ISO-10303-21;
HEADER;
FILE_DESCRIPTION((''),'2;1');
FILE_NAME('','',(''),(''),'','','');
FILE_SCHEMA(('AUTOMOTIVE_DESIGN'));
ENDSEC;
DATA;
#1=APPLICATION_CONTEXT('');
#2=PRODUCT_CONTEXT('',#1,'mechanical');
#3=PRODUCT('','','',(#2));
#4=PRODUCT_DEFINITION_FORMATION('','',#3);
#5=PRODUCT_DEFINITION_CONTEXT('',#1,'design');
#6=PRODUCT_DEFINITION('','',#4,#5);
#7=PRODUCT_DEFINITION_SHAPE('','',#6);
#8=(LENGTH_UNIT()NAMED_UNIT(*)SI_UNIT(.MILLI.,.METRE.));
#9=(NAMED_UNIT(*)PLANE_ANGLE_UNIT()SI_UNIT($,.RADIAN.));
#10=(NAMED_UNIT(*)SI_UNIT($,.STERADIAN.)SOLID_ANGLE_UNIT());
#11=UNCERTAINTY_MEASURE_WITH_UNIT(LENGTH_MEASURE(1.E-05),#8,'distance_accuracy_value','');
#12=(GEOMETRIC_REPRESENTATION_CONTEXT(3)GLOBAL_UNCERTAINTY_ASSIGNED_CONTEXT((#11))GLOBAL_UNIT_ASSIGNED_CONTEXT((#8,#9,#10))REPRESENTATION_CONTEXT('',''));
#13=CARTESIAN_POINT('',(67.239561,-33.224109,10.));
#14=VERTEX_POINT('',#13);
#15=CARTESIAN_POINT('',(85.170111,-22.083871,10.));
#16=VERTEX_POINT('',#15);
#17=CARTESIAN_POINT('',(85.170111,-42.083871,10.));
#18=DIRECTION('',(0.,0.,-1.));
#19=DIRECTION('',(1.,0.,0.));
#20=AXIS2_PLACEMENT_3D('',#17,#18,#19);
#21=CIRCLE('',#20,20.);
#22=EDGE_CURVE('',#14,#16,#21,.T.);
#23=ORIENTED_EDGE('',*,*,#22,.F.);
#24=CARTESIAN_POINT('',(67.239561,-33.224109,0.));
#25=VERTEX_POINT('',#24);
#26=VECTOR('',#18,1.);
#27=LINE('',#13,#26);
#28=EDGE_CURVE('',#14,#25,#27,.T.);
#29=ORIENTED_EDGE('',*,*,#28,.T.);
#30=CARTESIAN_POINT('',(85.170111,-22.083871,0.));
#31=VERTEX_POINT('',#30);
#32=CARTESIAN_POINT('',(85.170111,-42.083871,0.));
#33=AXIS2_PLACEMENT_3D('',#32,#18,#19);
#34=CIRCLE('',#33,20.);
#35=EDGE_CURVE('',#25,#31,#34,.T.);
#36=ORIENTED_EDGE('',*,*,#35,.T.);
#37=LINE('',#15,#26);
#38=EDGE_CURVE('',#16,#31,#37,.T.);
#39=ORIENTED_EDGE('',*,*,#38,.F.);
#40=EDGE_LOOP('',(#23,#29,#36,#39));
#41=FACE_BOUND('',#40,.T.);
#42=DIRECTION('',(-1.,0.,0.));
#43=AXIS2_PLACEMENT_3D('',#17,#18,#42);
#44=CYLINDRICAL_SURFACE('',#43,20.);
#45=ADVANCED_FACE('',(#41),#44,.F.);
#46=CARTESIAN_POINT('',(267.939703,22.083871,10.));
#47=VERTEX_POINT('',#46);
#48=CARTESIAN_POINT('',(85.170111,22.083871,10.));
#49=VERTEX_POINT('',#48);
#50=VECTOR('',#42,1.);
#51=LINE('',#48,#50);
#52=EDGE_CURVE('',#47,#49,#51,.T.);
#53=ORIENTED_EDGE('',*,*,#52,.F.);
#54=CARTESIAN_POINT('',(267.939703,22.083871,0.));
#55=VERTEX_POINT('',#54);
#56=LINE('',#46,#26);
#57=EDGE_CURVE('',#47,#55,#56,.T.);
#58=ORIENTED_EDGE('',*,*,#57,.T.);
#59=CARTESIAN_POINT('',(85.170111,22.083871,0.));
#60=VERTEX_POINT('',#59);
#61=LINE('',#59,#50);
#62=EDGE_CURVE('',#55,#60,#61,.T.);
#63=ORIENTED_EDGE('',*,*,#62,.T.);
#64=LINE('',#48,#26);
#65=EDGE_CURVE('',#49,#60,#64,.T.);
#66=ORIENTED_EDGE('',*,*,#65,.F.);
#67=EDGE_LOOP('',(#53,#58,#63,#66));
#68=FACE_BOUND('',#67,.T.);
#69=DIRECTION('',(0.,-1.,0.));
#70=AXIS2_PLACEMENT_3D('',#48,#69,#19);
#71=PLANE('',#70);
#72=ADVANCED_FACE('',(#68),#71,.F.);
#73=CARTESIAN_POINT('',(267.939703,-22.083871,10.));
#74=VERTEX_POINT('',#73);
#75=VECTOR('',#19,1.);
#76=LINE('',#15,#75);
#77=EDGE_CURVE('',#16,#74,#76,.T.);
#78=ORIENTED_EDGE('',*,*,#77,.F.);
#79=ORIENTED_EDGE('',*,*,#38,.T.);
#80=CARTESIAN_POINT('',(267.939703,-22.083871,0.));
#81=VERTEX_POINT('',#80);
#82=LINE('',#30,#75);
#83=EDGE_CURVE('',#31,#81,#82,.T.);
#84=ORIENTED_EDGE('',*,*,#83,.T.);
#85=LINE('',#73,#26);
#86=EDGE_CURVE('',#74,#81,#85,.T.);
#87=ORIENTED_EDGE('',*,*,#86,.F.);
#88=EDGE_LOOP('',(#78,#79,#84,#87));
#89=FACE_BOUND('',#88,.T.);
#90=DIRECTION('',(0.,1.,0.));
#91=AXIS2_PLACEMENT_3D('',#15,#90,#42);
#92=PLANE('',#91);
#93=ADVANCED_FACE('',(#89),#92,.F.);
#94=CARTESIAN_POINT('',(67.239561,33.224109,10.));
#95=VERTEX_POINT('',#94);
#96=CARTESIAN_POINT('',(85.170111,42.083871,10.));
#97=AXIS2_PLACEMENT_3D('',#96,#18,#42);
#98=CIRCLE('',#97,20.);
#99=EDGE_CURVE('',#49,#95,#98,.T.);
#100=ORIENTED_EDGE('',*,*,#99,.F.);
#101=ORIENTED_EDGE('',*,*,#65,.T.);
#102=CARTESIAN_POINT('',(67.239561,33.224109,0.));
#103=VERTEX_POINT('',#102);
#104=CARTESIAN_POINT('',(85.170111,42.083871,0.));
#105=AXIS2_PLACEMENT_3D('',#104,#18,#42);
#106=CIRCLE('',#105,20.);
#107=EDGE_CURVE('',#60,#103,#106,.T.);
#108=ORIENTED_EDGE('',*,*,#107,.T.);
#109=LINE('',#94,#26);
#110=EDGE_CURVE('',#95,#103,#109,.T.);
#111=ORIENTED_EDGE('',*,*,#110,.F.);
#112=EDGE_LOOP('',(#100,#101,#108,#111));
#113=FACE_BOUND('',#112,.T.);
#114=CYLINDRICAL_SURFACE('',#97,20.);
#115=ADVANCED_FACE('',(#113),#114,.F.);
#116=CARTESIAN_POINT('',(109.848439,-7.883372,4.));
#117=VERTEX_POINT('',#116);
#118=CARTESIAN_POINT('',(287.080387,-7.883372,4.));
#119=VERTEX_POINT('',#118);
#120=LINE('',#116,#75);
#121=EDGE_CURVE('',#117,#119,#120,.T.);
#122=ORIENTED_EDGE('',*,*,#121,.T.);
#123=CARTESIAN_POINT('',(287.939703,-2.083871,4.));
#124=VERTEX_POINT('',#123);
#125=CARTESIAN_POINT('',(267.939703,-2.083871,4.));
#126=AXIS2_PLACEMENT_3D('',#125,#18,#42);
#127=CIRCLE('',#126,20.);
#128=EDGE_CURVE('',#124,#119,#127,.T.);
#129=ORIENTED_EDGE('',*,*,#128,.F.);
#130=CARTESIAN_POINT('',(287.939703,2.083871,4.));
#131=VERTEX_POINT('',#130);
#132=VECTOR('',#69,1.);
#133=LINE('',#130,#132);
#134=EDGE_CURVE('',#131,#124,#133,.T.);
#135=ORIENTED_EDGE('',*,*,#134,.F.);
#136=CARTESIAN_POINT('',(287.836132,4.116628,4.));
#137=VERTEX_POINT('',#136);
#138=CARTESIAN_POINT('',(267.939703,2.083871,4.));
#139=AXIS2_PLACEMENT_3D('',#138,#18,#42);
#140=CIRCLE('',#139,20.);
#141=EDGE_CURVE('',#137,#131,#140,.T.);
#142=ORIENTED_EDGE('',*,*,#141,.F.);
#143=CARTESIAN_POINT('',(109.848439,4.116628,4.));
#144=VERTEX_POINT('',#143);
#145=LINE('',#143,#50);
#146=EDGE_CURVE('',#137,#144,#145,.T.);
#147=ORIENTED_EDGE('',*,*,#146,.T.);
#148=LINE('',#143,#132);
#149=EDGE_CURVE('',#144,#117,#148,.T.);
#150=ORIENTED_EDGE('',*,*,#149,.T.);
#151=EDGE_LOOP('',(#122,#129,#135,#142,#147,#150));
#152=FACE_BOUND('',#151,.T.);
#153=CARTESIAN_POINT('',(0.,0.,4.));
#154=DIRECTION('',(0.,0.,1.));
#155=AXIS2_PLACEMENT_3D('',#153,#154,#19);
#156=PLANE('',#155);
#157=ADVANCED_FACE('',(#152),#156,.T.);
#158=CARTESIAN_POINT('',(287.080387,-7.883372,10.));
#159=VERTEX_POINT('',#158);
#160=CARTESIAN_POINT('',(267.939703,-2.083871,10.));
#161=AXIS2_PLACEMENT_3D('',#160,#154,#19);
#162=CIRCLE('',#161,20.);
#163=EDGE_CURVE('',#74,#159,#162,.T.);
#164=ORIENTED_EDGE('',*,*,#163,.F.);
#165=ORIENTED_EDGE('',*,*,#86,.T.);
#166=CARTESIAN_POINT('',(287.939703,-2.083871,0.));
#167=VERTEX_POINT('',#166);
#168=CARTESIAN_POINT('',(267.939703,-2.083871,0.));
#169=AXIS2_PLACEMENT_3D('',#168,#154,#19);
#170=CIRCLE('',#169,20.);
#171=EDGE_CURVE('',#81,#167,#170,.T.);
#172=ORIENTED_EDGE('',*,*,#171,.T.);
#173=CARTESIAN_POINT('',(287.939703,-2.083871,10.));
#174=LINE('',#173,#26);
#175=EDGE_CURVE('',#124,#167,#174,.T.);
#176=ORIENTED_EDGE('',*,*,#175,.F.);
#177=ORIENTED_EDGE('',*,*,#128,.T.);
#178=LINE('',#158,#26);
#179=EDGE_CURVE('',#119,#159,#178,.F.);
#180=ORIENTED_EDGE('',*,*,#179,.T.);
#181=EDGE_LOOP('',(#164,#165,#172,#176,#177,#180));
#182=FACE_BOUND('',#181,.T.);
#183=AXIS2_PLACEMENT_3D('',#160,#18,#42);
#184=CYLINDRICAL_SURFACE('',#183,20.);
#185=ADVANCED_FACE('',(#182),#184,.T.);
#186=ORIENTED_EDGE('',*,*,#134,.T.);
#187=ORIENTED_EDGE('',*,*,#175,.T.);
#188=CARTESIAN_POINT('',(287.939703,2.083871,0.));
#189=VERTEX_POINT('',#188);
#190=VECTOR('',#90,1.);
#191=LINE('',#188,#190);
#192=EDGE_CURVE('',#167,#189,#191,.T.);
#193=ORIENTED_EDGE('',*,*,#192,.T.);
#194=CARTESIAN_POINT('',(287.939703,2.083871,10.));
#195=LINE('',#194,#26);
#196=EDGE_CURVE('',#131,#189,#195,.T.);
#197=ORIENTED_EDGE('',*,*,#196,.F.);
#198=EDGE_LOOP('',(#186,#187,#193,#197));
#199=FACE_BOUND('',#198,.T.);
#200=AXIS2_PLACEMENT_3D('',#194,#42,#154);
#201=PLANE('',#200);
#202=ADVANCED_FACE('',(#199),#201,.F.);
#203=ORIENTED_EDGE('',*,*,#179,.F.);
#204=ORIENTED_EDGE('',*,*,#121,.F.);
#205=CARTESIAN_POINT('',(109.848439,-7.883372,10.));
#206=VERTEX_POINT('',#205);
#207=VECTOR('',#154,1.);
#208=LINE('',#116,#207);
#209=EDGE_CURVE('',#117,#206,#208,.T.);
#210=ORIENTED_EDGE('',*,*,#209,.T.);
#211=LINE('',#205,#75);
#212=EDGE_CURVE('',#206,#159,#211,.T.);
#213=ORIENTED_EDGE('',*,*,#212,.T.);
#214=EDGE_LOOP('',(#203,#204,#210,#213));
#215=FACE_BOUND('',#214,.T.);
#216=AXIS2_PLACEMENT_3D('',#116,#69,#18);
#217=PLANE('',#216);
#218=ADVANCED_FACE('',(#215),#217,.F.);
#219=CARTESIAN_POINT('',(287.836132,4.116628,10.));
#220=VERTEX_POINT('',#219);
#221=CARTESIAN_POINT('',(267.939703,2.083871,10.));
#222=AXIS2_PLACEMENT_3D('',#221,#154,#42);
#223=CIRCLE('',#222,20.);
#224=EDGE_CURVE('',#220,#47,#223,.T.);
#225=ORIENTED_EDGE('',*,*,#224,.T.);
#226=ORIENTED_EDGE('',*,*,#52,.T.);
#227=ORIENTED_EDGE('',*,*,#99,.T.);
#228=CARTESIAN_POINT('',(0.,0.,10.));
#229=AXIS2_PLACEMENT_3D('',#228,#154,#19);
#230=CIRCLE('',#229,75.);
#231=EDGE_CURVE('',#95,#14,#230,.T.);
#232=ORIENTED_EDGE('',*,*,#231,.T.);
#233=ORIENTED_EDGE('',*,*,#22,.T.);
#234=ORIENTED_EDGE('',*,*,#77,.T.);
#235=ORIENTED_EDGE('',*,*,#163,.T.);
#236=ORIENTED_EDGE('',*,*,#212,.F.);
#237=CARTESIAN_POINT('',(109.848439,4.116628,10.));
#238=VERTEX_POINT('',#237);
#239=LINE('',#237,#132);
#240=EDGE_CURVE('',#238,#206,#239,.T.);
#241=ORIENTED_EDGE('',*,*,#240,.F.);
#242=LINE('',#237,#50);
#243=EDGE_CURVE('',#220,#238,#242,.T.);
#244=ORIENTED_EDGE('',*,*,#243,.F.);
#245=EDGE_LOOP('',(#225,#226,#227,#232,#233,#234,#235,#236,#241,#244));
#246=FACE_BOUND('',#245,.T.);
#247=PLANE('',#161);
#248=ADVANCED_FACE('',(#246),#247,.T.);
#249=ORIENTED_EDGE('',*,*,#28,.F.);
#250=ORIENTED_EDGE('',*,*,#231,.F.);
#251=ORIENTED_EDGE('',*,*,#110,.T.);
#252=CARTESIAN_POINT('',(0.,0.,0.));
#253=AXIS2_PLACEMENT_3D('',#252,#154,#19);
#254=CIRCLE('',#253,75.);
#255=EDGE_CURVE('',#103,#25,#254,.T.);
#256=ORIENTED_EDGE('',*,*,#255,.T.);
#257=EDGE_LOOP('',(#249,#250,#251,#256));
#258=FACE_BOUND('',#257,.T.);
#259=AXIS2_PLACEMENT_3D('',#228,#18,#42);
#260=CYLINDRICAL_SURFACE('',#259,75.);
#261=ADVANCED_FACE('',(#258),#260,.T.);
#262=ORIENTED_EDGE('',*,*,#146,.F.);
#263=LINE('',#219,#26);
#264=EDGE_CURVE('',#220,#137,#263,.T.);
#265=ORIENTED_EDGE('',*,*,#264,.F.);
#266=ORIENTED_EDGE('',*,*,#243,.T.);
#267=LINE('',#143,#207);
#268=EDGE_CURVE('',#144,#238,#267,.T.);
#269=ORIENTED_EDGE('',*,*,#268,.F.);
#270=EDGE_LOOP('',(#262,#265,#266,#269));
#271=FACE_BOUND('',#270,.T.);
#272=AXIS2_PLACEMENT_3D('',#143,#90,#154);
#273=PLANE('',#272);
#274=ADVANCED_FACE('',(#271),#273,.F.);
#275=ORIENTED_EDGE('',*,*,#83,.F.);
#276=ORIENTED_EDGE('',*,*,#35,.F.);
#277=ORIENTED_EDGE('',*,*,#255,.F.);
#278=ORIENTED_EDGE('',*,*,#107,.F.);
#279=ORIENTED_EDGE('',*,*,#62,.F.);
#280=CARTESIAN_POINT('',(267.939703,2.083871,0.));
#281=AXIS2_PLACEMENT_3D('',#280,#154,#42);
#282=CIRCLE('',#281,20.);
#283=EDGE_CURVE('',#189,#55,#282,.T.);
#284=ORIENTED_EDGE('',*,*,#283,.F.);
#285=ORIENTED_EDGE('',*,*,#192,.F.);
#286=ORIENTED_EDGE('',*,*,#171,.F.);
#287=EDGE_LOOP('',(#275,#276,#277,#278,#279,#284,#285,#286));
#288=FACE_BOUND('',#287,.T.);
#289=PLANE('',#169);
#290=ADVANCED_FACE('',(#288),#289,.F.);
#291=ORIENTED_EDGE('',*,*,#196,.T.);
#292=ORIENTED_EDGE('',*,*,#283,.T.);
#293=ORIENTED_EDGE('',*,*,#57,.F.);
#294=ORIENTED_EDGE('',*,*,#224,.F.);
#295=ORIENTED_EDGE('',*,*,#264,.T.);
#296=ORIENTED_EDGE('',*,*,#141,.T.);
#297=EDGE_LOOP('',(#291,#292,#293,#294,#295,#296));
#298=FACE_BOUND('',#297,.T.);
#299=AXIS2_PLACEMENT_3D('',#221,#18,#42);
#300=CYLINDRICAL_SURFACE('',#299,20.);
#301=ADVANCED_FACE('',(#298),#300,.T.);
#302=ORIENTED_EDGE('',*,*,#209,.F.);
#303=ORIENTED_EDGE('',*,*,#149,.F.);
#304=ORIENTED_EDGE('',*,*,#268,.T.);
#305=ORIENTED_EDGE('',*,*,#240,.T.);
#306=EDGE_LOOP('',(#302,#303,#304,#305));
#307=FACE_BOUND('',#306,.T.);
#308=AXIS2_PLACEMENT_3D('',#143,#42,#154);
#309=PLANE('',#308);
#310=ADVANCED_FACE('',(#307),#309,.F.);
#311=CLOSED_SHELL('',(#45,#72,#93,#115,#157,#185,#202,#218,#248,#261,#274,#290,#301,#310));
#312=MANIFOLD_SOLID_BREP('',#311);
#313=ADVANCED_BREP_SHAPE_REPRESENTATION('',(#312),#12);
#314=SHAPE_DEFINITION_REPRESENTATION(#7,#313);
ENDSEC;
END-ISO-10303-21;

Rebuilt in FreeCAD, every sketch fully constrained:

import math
import FreeCAD as App
import Part
import Sketcher

V = App.Vector
Q = App.Units.Quantity

doc = App.newDocument("Part")
body = doc.addObject("PartDesign::Body", "Body")

sketch1 = body.newObject("Sketcher::SketchObject", "Sketch")
sketch1.AttachmentSupport = (doc.getObject("XY_Plane"), [""])
sketch1.MapMode = "FlatFace"
sketch1.addGeometry([
    Part.LineSegment(V(267.939703, 22.083871, 0), V(85.170111, 22.083871, 0)),
    Part.ArcOfCircle(Part.Circle(V(85.170111, 42.083871, 0), V(0, 0, 1), 20), math.radians(-153.705309), math.radians(-90)),
    Part.ArcOfCircle(Part.Circle(V(0, 0, 0), V(0, 0, 1), 75), math.radians(26.294691), math.radians(333.705309)),
    Part.ArcOfCircle(Part.Circle(V(85.170111, -42.083871, 0), V(0, 0, 1), 20), math.radians(90), math.radians(153.705309)),
    Part.LineSegment(V(85.170111, -22.083871, 0), V(267.939703, -22.083871, 0)),
    Part.ArcOfCircle(Part.Circle(V(267.939703, -2.083871, 0), V(0, 0, 1), 20), math.radians(-90), math.radians(0)),
    Part.LineSegment(V(287.939703, -2.083871, 0), V(287.939703, 2.083871, 0)),
    Part.ArcOfCircle(Part.Circle(V(267.939703, 2.083871, 0), V(0, 0, 1), 20), math.radians(0), math.radians(90)),
], False)
sketch1.addConstraint([
    Sketcher.Constraint("Tangent", 0, 2, 1, 2),
    Sketcher.Constraint("Tangent", 1, 1, 2, 1),
    Sketcher.Constraint("Tangent", 2, 2, 3, 2),
    Sketcher.Constraint("Tangent", 3, 1, 4, 1),
    Sketcher.Constraint("Tangent", 4, 2, 5, 1),
    Sketcher.Constraint("Tangent", 5, 2, 6, 1),
    Sketcher.Constraint("Tangent", 6, 2, 7, 1),
    Sketcher.Constraint("Tangent", 7, 2, 0, 1),
    Sketcher.Constraint("Horizontal", 0),
    Sketcher.Constraint("Horizontal", 4),
    Sketcher.Constraint("Vertical", 6),
    Sketcher.Constraint("Coincident", 2, 3, -1, 1),
    Sketcher.Constraint("Equal", 1, 3),
    Sketcher.Constraint("Equal", 3, 5),
    Sketcher.Constraint("Equal", 5, 7),
    Sketcher.Constraint("Vertical", 1, 3, 3, 3),
    Sketcher.Constraint("Radius", 1, Q("20 mm")),
    Sketcher.Constraint("Radius", 2, Q("75 mm")),
    Sketcher.Constraint("DistanceX", 0, 2, 0, 1, Q("182.769592 mm")),
    Sketcher.Constraint("DistanceY", 6, 1, 6, 2, Q("4.167742 mm")),
])
pad1 = body.newObject("PartDesign::Pad", "Pad")
pad1.Profile = sketch1
pad1.Length = 10

sketch2 = body.newObject("Sketcher::SketchObject", "Sketch001")
sketch2.AttachmentSupport = (doc.getObject("XY_Plane"), [""])
sketch2.MapMode = "FlatFace"
sketch2.AttachmentOffset = App.Placement(V(0, 0, 10), App.Rotation())
sketch2.addGeometry([
    Part.LineSegment(V(109.848439, 4.116628, 0), V(109.848439, -7.883372, 0)),
    Part.LineSegment(V(109.848439, -7.883372, 0), V(278.77783, -7.883372, 0)),
    Part.LineSegment(V(278.77783, -7.883372, 0), V(278.77783, 4.116628, 0)),
    Part.LineSegment(V(278.77783, 4.116628, 0), V(109.848439, 4.116628, 0)),
], False)
sketch2.addConstraint([
    Sketcher.Constraint("Coincident", 0, 2, 1, 1),
    Sketcher.Constraint("Coincident", 1, 2, 2, 1),
    Sketcher.Constraint("Coincident", 2, 2, 3, 1),
    Sketcher.Constraint("Coincident", 3, 2, 0, 1),
    Sketcher.Constraint("Vertical", 0),
    Sketcher.Constraint("Horizontal", 1),
    Sketcher.Constraint("Vertical", 2),
    Sketcher.Constraint("Horizontal", 3),
    Sketcher.Constraint("DistanceY", 0, 2, 0, 1, Q("12 mm")),
    Sketcher.Constraint("DistanceX", 1, 1, 1, 2, Q("168.929391 mm")),
    Sketcher.Constraint("DistanceX", -1, 1, 0, 2, Q("109.848439 mm")),
    Sketcher.Constraint("DistanceY", 0, 2, -1, 1, Q("7.883372 mm")),
])
pocket1 = body.newObject("PartDesign::Pocket", "Pocket")
pocket1.Profile = sketch2
pocket1.Length = 6

sketch3 = body.newObject("Sketcher::SketchObject", "Sketch002")
sketch3.AttachmentSupport = (doc.getObject("XY_Plane"), [""])
sketch3.MapMode = "FlatFace"
sketch3.AttachmentOffset = App.Placement(V(0, 0, 10), App.Rotation())
sketch3.addGeometry([
    Part.LineSegment(V(278.77783, 4.116628, 0), V(278.77783, -7.883372, 0)),
    Part.LineSegment(V(278.77783, -7.883372, 0), V(358.737742, -7.883372, 0)),
    Part.LineSegment(V(358.737742, -7.883372, 0), V(358.737742, 4.116628, 0)),
    Part.LineSegment(V(358.737742, 4.116628, 0), V(278.77783, 4.116628, 0)),
], False)
sketch3.addConstraint([
    Sketcher.Constraint("Coincident", 0, 2, 1, 1),
    Sketcher.Constraint("Coincident", 1, 2, 2, 1),
    Sketcher.Constraint("Coincident", 2, 2, 3, 1),
    Sketcher.Constraint("Coincident", 3, 2, 0, 1),
    Sketcher.Constraint("Vertical", 0),
    Sketcher.Constraint("Horizontal", 1),
    Sketcher.Constraint("Vertical", 2),
    Sketcher.Constraint("Horizontal", 3),
    Sketcher.Constraint("DistanceY", 0, 2, 0, 1, Q("12 mm")),
    Sketcher.Constraint("DistanceX", 1, 1, 1, 2, Q("79.959912 mm")),
    Sketcher.Constraint("DistanceX", -1, 1, 0, 2, Q("278.77783 mm")),
    Sketcher.Constraint("DistanceY", 0, 2, -1, 1, Q("7.883372 mm")),
])
pocket2 = body.newObject("PartDesign::Pocket", "Pocket001")
pocket2.Profile = sketch3
pocket2.Length = 6

doc.recompute()
